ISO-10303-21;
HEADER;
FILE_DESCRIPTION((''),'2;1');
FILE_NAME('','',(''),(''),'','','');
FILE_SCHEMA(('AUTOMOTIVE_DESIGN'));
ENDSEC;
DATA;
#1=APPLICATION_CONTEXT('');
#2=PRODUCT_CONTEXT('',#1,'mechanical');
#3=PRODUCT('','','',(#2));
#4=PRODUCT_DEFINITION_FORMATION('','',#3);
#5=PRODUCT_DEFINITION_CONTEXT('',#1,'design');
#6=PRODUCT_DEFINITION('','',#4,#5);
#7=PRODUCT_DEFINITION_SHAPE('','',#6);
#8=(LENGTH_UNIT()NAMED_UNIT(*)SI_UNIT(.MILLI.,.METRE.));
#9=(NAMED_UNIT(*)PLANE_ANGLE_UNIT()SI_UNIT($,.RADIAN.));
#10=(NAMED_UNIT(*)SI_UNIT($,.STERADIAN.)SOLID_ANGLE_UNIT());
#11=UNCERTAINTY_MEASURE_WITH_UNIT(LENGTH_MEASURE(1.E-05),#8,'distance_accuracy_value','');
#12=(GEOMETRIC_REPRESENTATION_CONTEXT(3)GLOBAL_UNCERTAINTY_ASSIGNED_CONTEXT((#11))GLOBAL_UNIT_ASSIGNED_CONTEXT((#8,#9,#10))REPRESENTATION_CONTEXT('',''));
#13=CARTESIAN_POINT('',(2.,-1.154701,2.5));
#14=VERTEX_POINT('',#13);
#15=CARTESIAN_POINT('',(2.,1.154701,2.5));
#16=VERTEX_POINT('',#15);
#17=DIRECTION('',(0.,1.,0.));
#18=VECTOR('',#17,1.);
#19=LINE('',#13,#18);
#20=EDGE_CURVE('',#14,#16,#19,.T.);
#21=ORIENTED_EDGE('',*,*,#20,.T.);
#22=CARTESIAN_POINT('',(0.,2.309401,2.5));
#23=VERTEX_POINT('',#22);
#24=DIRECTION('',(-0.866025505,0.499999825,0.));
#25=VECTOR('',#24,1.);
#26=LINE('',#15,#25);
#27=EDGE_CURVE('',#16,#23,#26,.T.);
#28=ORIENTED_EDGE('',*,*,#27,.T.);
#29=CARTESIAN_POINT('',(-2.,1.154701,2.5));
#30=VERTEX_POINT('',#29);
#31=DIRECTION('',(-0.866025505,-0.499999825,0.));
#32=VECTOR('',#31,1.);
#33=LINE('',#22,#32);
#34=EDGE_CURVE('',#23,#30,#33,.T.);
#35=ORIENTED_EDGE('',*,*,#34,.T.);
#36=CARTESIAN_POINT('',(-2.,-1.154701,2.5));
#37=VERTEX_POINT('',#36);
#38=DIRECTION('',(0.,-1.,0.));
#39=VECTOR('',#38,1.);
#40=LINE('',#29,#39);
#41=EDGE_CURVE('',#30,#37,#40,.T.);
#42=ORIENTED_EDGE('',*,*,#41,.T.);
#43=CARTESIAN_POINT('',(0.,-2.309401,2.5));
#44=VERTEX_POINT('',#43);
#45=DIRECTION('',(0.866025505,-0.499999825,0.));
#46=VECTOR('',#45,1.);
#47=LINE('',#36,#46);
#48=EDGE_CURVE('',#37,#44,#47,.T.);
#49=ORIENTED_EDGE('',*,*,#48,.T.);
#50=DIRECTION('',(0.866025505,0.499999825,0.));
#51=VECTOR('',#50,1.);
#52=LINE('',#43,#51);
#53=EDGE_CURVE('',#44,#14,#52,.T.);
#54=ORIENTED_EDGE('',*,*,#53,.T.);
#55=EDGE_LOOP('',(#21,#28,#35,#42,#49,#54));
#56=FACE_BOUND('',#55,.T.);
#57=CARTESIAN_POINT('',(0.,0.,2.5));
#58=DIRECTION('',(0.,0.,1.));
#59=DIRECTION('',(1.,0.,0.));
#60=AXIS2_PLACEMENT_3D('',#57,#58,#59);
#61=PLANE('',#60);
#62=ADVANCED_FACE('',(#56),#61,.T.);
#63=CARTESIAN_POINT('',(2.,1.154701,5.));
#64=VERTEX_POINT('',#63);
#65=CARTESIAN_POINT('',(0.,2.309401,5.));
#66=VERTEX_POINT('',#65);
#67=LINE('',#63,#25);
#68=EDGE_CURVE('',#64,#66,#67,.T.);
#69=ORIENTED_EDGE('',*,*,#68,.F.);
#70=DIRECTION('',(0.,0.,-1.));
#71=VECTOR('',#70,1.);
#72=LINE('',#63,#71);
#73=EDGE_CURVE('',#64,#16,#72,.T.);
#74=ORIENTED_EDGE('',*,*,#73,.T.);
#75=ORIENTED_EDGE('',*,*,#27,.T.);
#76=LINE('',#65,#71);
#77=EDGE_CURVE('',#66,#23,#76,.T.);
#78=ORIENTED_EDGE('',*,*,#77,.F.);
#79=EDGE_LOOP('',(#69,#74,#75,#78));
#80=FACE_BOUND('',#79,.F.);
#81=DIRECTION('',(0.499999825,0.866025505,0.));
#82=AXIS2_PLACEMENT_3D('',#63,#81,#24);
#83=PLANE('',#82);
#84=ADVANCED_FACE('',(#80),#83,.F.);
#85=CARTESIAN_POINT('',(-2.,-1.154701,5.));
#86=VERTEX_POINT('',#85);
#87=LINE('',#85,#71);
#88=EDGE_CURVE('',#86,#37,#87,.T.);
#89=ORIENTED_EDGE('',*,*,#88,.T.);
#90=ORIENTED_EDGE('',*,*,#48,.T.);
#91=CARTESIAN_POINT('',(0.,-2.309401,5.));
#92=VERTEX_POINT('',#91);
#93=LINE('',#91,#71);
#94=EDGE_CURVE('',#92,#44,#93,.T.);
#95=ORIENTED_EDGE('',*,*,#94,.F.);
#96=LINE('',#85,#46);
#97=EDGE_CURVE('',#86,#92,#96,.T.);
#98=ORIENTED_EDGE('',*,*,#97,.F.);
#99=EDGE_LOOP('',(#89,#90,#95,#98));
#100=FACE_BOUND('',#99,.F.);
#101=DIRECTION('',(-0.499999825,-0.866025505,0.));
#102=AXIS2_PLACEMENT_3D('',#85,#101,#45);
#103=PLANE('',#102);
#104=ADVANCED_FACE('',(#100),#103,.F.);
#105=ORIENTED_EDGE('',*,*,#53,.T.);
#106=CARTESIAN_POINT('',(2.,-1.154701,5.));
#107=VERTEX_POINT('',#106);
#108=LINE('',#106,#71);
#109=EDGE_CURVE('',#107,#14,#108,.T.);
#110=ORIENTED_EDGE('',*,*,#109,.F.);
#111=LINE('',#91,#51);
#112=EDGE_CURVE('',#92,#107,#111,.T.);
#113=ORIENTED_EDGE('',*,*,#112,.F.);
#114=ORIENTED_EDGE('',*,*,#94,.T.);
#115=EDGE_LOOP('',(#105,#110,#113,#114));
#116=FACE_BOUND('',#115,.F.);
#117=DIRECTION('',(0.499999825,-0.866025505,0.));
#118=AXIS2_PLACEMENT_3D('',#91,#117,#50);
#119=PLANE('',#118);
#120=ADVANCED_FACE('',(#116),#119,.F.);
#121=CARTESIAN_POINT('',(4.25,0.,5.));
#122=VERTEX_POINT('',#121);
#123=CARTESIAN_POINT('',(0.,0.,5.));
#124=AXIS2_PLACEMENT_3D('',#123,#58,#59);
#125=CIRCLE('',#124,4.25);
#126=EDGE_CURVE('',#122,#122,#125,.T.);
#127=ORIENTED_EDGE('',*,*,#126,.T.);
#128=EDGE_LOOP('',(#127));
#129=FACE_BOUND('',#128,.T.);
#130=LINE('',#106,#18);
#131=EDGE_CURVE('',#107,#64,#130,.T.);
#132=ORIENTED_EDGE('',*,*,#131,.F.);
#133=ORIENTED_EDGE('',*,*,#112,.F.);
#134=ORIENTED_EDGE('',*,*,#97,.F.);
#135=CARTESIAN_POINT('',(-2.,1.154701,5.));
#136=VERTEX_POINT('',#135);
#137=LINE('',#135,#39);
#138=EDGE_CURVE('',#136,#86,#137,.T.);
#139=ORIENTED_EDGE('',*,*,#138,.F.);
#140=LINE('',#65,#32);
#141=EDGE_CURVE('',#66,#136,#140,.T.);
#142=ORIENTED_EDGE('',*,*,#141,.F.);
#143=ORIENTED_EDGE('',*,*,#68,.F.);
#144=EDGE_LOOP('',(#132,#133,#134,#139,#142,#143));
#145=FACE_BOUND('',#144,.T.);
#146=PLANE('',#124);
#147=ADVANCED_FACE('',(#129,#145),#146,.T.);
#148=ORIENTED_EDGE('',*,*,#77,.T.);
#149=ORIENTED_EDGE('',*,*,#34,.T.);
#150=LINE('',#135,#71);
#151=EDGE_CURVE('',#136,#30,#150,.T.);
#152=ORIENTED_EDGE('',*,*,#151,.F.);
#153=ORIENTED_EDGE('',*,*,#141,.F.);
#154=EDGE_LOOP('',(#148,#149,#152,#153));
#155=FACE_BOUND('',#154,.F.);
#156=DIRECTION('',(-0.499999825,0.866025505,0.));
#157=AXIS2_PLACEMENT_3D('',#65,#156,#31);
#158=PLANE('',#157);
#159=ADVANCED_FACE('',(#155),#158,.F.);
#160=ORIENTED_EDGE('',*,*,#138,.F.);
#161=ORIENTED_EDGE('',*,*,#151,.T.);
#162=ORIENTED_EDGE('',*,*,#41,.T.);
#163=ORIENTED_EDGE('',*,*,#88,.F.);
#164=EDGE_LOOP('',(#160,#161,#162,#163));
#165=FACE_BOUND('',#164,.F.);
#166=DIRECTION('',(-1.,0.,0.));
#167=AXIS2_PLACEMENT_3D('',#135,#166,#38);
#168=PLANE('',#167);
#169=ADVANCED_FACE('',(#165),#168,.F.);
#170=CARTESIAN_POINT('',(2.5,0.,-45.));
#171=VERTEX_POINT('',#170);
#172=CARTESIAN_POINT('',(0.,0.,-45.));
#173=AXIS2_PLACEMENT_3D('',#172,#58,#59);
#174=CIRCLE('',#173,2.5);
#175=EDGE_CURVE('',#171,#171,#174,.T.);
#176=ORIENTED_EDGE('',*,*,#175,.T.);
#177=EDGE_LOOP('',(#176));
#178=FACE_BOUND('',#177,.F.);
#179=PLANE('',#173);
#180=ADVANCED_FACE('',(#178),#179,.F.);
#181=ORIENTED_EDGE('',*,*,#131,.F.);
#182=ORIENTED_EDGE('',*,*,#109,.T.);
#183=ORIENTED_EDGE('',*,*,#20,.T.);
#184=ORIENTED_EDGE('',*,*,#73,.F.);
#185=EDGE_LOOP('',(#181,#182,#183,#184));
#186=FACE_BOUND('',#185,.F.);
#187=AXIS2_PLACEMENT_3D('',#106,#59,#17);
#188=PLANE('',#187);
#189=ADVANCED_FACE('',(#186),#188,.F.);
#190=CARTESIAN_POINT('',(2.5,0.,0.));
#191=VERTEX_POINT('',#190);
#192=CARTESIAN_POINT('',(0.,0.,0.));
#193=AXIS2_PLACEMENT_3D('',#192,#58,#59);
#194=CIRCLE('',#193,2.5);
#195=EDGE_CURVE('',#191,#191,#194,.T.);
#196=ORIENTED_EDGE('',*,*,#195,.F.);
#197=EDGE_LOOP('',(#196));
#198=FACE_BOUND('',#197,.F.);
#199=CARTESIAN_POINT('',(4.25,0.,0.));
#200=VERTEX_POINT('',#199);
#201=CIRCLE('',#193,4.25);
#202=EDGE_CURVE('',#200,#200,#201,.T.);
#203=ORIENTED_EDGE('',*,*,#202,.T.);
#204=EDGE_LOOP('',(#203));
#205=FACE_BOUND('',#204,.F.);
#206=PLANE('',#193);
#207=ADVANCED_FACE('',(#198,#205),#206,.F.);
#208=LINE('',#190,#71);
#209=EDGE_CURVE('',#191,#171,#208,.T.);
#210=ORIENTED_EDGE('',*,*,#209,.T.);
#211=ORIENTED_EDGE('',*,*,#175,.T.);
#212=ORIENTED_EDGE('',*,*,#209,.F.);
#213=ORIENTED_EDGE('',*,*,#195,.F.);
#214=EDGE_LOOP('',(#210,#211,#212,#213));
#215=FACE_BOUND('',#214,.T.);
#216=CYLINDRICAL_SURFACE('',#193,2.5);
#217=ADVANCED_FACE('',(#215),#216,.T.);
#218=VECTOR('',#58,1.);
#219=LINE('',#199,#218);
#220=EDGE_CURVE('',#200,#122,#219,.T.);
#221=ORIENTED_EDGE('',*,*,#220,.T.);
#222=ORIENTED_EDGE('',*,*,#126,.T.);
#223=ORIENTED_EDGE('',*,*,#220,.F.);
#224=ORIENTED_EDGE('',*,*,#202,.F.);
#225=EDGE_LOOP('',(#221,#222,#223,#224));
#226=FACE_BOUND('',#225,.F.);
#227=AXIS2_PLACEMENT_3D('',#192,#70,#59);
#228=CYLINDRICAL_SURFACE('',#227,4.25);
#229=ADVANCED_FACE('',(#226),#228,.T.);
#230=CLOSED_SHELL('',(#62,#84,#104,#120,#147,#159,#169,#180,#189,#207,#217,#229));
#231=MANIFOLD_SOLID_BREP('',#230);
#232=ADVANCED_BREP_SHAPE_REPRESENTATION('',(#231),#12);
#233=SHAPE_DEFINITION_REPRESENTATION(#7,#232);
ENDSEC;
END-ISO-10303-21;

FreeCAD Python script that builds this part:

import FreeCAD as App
import Part
import Sketcher

V = App.Vector
Q = App.Units.Quantity

doc = App.newDocument("Part")
body = doc.addObject("PartDesign::Body", "Body")

# Sketch on XY plane
sketch1 = body.newObject("Sketcher::SketchObject", "Sketch")
sketch1.AttachmentSupport = (doc.getObject("XY_Plane"), [""])
sketch1.MapMode = "FlatFace"
sketch1.addGeometry(Part.Circle(V(0, 0, 0), V(0, 0, 1), 4.25), False)
sketch1.addConstraint(Sketcher.Constraint("Coincident", 0, 3, -1, 1))
sketch1.addConstraint(Sketcher.Constraint("Diameter", 0, 8.5))
pad1 = body.newObject("PartDesign::Pad", "Pad")
pad1.Profile = sketch1
pad1.Length = 5

# Sketch on XY plane
sketch2 = body.newObject("Sketcher::SketchObject", "Sketch001")
sketch2.AttachmentSupport = (doc.getObject("XY_Plane"), [""])
sketch2.MapMode = "FlatFace"
sketch2.AttachmentOffset = App.Placement(V(0, 0, 5), App.Rotation())
sketch2.addGeometry(Part.LineSegment(V(0, -2.309401, 0), V(2, -1.154701, 0)), False)
sketch2.addGeometry(Part.LineSegment(V(2, -1.154701, 0), V(2, 1.154701, 0)), False)
sketch2.addGeometry(Part.LineSegment(V(2, 1.154701, 0), V(0, 2.309401, 0)), False)
sketch2.addGeometry(Part.LineSegment(V(0, 2.309401, 0), V(-2, 1.154701, 0)), False)
sketch2.addGeometry(Part.LineSegment(V(-2, 1.154701, 0), V(-2, -1.154701, 0)), False)
sketch2.addGeometry(Part.LineSegment(V(-2, -1.154701, 0), V(0, -2.309401, 0)), False)
sketch2.addConstraint(Sketcher.Constraint("Coincident", 0, 2, 1, 1))
sketch2.addConstraint(Sketcher.Constraint("Coincident", 1, 2, 2, 1))
sketch2.addConstraint(Sketcher.Constraint("Coincident", 2, 2, 3, 1))
sketch2.addConstraint(Sketcher.Constraint("Coincident", 3, 2, 4, 1))
sketch2.addConstraint(Sketcher.Constraint("Coincident", 4, 2, 5, 1))
sketch2.addConstraint(Sketcher.Constraint("Coincident", 5, 2, 0, 1))
sketch2.addConstraint(Sketcher.Constraint("Vertical", 1))
sketch2.addConstraint(Sketcher.Constraint("Vertical", 4))
sketch2.addConstraint(Sketcher.Constraint("Symmetric", 0, 2, 3, 2, -1, 1))
sketch2.addConstraint(Sketcher.Constraint("Symmetric", 2, 2, 5, 2, -1, 1))
sketch2.addConstraint(Sketcher.Constraint("PointOnObject", 2, 2, -2))
sketch2.addConstraint(Sketcher.Constraint("Parallel", 2, 5))
sketch2.addConstraint(Sketcher.Constraint("Horizontal", 1, 2, 3, 2))
sketch2.addConstraint(Sketcher.Constraint("Angle", 0, Q("29.999988 deg")))
sketch2.addConstraint(Sketcher.Constraint("DistanceX", -1, 1, 0, 2, 2.0))
sketch2.addConstraint(Sketcher.Constraint("DistanceY", 1, 1, 1, 2, 2.309402))
pocket1 = body.newObject("PartDesign::Pocket", "Pocket")
pocket1.Profile = sketch2
pocket1.Length = 2.5

# Sketch on XY plane
sketch3 = body.newObject("Sketcher::SketchObject", "Sketch002")
sketch3.AttachmentSupport = (doc.getObject("XY_Plane"), [""])
sketch3.MapMode = "FlatFace"
sketch3.addGeometry(Part.Circle(V(0, 0, 0), V(0, 0, 1), 2.5), False)
sketch3.addConstraint(Sketcher.Constraint("Coincident", 0, 3, -1, 1))
sketch3.addConstraint(Sketcher.Constraint("Diameter", 0, 5.0))
pad2 = body.newObject("PartDesign::Pad", "Pad001")
pad2.Profile = sketch3
pad2.Length = 45
pad2.Reversed = True

doc.recompute()
